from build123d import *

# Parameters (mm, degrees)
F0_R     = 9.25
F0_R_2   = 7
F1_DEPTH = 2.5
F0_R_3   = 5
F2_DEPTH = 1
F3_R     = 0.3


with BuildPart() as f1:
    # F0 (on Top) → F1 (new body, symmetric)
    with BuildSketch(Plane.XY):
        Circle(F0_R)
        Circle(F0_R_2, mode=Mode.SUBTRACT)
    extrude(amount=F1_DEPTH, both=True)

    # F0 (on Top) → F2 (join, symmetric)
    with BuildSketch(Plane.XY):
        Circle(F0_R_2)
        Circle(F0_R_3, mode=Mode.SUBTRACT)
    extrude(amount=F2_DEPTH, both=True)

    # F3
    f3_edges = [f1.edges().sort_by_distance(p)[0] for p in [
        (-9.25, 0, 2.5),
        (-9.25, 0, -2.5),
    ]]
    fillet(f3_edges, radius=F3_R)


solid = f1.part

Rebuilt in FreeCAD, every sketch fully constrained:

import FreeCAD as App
import Part
import Sketcher

V = App.Vector
Q = App.Units.Quantity


def edges_at(feature, points):
    """Names of the edges that pass closest to the given points."""
    edges = feature.Shape.Edges
    near = lambda p: min(range(len(edges)), key=lambda i: edges[i].distToShape(Part.Vertex(*p))[0])
    return sorted({f"Edge{near(p) + 1}" for p in points})

doc = App.newDocument("Part")
params = doc.addObject("Spreadsheet::Sheet", "Params")
for row, (alias, value) in enumerate([
    ("sketch1_diameter", "14 mm"),
    ("sketch1_diameter2", "18.5 mm"),
    ("pad1_length", "5 mm"),
    ("sketch2_diameter", "14 mm"),
    ("sketch2_diameter2", "10 mm"),
    ("pad2_length", "2 mm"),
    ("fillet_radius", "0.3 mm"),
], start=1):
    params.set(f"A{row}", alias)
    params.set(f"B{row}", "=" + value)
    params.setAlias(f"B{row}", alias)

body = doc.addObject("PartDesign::Body", "Body")

# Sketch on XY plane
sketch1 = doc.addObject("Sketcher::SketchObject", "Sketch")
body.addObject(sketch1)
sketch1.AttachmentSupport = (doc.XY_Plane, [""])
sketch1.MapMode = "FlatFace"
sketch1.addGeometry(Part.Circle(V(0, 0, 0), V(0, 0, 1), 9), False)
sketch1.addGeometry(Part.Circle(V(0, 0, 0), V(0, 0, 1), 7), False)
sketch1.addConstraint(Sketcher.Constraint("Coincident", 0, 3, -1, 1))
sketch1.addConstraint(Sketcher.Constraint("Coincident", 1, 3, -1, 1))
sketch1.addConstraint(Sketcher.Constraint("Diameter", 1, Q("14 mm")))
sketch1.addConstraint(Sketcher.Constraint("Diameter", 0, Q("18.5 mm")))
sketch1.setExpression("Constraints[2]", "Params.sketch1_diameter")
sketch1.setExpression("Constraints[3]", "Params.sketch1_diameter2")
pad1 = doc.addObject("PartDesign::Pad", "Pad")
body.addObject(pad1)
pad1.Profile = sketch1
pad1.setExpression("Length", "Params.pad1_length")
pad1.Midplane = True

# Sketch on XY plane
sketch2 = doc.addObject("Sketcher::SketchObject", "Sketch001")
body.addObject(sketch2)
sketch2.AttachmentSupport = (doc.XY_Plane, [""])
sketch2.MapMode = "FlatFace"
sketch2.addGeometry(Part.Circle(V(0, 0, 0), V(0, 0, 1), 7), False)
sketch2.addGeometry(Part.Circle(V(0, 0, 0), V(0, 0, 1), 5), False)
sketch2.addConstraint(Sketcher.Constraint("Coincident", 0, 3, -1, 1))
sketch2.addConstraint(Sketcher.Constraint("Coincident", 1, 3, -1, 1))
sketch2.addConstraint(Sketcher.Constraint("Diameter", 0, Q("14 mm")))
sketch2.addConstraint(Sketcher.Constraint("Diameter", 1, Q("10 mm")))
sketch2.setExpression("Constraints[2]", "Params.sketch2_diameter")
sketch2.setExpression("Constraints[3]", "Params.sketch2_diameter2")
pad2 = doc.addObject("PartDesign::Pad", "Pad001")
body.addObject(pad2)
pad2.Profile = sketch2
pad2.setExpression("Length", "Params.pad2_length")
pad2.Midplane = True
doc.recompute()

fillet = doc.addObject("PartDesign::Fillet", "Fillet")
body.addObject(fillet)
fillet.Base = (pad2, edges_at(pad2, [(-9.25, 0, 2.5), (-9.25, 0, -2.5)]))
fillet.setExpression("Radius", "Params.fillet_radius")

doc.recompute()
